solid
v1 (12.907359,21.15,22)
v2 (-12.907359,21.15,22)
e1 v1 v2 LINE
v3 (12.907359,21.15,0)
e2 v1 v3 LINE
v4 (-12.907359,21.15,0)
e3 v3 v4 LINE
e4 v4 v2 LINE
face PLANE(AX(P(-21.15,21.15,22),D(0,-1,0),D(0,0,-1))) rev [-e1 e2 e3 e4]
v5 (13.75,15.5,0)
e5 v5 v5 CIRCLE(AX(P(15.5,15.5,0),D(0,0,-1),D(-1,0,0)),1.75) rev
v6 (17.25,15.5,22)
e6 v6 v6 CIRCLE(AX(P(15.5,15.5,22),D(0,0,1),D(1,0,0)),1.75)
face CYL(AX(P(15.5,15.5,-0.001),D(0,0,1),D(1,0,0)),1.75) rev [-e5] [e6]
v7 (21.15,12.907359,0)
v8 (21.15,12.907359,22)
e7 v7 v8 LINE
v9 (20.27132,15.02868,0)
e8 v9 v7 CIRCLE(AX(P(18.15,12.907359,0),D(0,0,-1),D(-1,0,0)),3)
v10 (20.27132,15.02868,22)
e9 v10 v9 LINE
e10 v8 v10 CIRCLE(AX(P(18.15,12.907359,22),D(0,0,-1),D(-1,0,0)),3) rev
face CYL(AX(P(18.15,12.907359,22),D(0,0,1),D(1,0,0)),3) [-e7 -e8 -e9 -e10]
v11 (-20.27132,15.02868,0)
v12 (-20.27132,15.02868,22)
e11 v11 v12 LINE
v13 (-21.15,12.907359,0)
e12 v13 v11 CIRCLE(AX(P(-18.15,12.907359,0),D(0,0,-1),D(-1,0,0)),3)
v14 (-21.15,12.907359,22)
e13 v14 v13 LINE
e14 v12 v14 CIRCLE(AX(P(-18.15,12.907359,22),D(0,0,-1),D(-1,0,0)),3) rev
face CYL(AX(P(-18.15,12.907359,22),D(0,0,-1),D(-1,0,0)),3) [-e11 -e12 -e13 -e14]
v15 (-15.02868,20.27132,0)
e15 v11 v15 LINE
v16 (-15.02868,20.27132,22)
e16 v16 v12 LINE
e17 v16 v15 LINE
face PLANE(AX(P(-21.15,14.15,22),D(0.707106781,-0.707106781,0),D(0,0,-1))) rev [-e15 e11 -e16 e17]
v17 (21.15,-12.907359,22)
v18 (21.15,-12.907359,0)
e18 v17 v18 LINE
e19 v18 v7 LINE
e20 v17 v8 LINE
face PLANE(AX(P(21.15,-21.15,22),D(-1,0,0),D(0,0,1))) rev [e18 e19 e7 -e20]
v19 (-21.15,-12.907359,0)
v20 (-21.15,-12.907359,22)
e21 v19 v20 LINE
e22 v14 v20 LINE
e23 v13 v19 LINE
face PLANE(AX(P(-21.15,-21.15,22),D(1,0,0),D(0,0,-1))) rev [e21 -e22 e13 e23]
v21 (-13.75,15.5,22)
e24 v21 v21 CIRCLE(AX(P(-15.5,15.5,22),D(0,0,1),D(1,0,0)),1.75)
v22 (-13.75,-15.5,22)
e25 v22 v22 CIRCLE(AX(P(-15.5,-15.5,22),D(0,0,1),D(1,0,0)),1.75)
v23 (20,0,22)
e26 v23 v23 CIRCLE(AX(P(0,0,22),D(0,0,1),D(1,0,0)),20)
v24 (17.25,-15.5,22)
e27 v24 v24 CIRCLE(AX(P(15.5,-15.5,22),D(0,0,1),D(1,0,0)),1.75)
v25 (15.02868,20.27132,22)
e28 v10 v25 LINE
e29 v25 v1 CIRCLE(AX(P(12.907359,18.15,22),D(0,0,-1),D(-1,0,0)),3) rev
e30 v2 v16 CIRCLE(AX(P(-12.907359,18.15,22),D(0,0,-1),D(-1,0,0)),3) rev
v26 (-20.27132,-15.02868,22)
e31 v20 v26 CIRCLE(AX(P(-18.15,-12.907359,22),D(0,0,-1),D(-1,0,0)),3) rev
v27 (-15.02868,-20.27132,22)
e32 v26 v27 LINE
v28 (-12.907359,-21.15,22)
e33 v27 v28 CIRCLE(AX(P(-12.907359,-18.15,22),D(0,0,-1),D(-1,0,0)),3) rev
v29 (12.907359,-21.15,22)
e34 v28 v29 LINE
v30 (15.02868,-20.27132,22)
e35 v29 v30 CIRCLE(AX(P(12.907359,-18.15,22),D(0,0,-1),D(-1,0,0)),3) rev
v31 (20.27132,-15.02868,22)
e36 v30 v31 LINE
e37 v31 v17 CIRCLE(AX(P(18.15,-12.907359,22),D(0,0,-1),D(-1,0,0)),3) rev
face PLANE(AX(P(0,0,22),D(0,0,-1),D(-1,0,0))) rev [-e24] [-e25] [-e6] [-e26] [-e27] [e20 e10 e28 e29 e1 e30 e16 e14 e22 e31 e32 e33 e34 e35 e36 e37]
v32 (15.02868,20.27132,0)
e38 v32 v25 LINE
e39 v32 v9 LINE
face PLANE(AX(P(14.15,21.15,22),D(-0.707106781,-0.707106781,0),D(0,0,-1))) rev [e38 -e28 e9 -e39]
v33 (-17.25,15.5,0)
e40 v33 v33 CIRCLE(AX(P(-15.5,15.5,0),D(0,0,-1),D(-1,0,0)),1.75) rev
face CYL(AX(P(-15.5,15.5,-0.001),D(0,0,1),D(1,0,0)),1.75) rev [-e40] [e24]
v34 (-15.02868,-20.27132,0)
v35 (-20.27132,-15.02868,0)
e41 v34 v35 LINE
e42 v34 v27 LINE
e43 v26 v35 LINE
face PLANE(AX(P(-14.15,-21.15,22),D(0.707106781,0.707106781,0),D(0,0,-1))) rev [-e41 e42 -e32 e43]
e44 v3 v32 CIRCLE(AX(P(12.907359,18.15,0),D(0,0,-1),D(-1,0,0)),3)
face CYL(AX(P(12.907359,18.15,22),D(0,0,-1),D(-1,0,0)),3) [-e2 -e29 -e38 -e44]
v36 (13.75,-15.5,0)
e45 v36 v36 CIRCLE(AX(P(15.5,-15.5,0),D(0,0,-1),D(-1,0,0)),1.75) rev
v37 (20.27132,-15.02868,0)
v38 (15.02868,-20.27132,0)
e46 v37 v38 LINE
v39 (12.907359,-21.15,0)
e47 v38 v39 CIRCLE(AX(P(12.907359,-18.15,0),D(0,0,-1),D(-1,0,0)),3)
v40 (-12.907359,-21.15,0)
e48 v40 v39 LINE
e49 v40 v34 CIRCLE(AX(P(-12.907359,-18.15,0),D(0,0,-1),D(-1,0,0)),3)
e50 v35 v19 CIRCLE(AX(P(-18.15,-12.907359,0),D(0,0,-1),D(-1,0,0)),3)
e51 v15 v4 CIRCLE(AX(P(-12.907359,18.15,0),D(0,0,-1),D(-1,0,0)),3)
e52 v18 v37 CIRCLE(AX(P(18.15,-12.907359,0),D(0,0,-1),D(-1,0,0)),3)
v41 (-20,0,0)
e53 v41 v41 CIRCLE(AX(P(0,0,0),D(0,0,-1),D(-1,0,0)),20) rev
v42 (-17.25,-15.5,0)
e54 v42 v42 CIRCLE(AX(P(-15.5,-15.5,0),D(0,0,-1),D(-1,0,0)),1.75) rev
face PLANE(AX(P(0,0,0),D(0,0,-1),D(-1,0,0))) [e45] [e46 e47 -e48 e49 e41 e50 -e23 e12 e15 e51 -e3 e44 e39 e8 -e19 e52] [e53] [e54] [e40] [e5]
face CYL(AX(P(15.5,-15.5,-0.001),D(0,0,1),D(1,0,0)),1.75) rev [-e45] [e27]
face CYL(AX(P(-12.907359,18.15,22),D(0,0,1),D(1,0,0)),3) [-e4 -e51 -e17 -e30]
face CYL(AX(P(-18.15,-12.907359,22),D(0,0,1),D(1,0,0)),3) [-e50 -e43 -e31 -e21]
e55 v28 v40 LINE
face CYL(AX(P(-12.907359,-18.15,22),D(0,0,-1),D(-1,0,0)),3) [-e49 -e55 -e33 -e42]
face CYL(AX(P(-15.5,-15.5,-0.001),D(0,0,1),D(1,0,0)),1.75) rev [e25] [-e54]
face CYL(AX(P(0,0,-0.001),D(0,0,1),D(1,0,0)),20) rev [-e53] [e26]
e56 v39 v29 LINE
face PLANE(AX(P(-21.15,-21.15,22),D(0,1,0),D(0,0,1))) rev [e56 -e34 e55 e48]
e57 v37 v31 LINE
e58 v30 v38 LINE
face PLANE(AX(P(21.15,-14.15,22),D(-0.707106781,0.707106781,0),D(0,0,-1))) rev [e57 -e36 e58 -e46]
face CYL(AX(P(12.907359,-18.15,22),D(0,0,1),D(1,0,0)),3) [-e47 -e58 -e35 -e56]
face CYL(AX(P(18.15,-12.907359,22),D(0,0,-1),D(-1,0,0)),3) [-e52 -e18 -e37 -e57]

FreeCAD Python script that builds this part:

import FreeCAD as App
import Part
import Sketcher

V = App.Vector


def edges_at(feature, points):
    """Names of the edges that pass closest to the given points."""
    edges = feature.Shape.Edges
    near = lambda p: min(range(len(edges)), key=lambda i: edges[i].distToShape(Part.Vertex(*p))[0])
    return sorted({f"Edge{near(p) + 1}" for p in points})


def add_polygon(sketch, points):
    """Adds a closed chain of lines whose ends are joined by coincident constraints."""
    first, n = sketch.GeometryCount, len(points)
    for a, b in zip(points, points[1:] + points[:1]):
        sketch.addGeometry(Part.LineSegment(App.Vector(*a, 0), App.Vector(*b, 0)), False)
    for i in range(n):
        sketch.addConstraint(Sketcher.Constraint("Coincident", first + i, 2, first + (i + 1) % n, 1))

doc = App.newDocument("Part")
body = doc.addObject("PartDesign::Body", "Body")

# Sketch on XY plane
sketch1 = body.newObject("Sketcher::SketchObject", "Sketch")
sketch1.AttachmentSupport = (doc.getObject("XY_Plane"), [""])
sketch1.MapMode = "FlatFace"
add_polygon(sketch1, [(-21, 21), (-21, -21), (21, -21), (21, 21)])  # lines 0-3
sketch1.addConstraint(Sketcher.Constraint("Vertical", 0))
sketch1.addConstraint(Sketcher.Constraint("Horizontal", 1))
sketch1.addConstraint(Sketcher.Constraint("Vertical", 2))
sketch1.addConstraint(Sketcher.Constraint("Horizontal", 3))
sketch1.addConstraint(Sketcher.Constraint("Symmetric", 0, 2, 2, 2, -1, 1))
sketch1.addConstraint(Sketcher.Constraint("Equal", 3, 0))
sketch1.addConstraint(Sketcher.Constraint("DistanceX", 1, 1, 1, 2, 42.3))
pad1 = body.newObject("PartDesign::Pad", "Pad")
pad1.Profile = sketch1
pad1.Length = 22
doc.recompute()

chamfer = body.newObject("PartDesign::Chamfer", "Chamfer")
chamfer.Base = (pad1, edges_at(pad1, [
    (21.15, -21.15, 11),
    (-21.15, -21.15, 11),
    (-21.15, 21.15, 11),
    (21.15, 21.15, 11),
]))
chamfer.Size = 7
doc.recompute()

fillet = body.newObject("PartDesign::Fillet", "Fillet")
fillet.Base = (chamfer, edges_at(chamfer, [
    (14.15, -21.15, 11),
    (-14.15, -21.15, 11),
    (-21.15, 14.15, 11),
    (-21.15, -14.15, 11),
    (21.15, 14.15, 11),
    (21.15, -14.15, 11),
    (14.15, 21.15, 11),
    (-14.15, 21.15, 11),
]))
fillet.Radius = 3

# Sketch on XY plane
sketch2 = body.newObject("Sketcher::SketchObject", "Sketch001")
sketch2.AttachmentSupport = (doc.getObject("XY_Plane"), [""])
sketch2.MapMode = "FlatFace"
sketch2.AttachmentOffset = App.Placement(V(0, 0, 22), App.Rotation())
sketch2.addGeometry(Part.Circle(V(0, 0, 0), V(0, 0, 1), 20), False)
sketch2.addConstraint(Sketcher.Constraint("Coincident", 0, 3, -1, 1))
sketch2.addConstraint(Sketcher.Constraint("Diameter", 0, 40.0))
pocket1 = body.newObject("PartDesign::Pocket", "Pocket")
pocket1.Profile = sketch2
pocket1.Type = "UpToFirst"

# Sketch on XY plane
sketch3 = body.newObject("Sketcher::SketchObject", "Sketch002")
sketch3.AttachmentSupport = (doc.getObject("XY_Plane"), [""])
sketch3.MapMode = "FlatFace"
sketch3.AttachmentOffset = App.Placement(V(0, 0, 22), App.Rotation())
sketch3.addGeometry(Part.Circle(V(-15.5, 15.5, 0), V(0, 0, 1), 1.8), False)
sketch3.addConstraint(Sketcher.Constraint("Diameter", 0, 3.5))
sketch3.addConstraint(Sketcher.Constraint("DistanceX", 0, 3, -1, 1, 15.5))
sketch3.addConstraint(Sketcher.Constraint("DistanceY", -1, 1, 0, 3, 15.5))
pocket2 = body.newObject("PartDesign::Pocket", "Pocket001")
pocket2.Profile = sketch3
pocket2.Type = "UpToFirst"

# Sketch on XY plane
sketch4 = body.newObject("Sketcher::SketchObject", "Sketch003")
sketch4.AttachmentSupport = (doc.getObject("XY_Plane"), [""])
sketch4.MapMode = "FlatFace"
sketch4.AttachmentOffset = App.Placement(V(0, 0, 22), App.Rotation())
sketch4.addGeometry(Part.Circle(V(15.5, 15.5, 0), V(0, 0, 1), 1.8), False)
sketch4.addConstraint(Sketcher.Constraint("Diameter", 0, 3.5))
sketch4.addConstraint(Sketcher.Constraint("DistanceX", -1, 1, 0, 3, 15.5))
sketch4.addConstraint(Sketcher.Constraint("DistanceY", -1, 1, 0, 3, 15.5))
pocket3 = body.newObject("PartDesign::Pocket", "Pocket002")
pocket3.Profile = sketch4
pocket3.Type = "UpToFirst"

# Sketch on XY plane
sketch5 = body.newObject("Sketcher::SketchObject", "Sketch004")
sketch5.AttachmentSupport = (doc.getObject("XY_Plane"), [""])
sketch5.MapMode = "FlatFace"
sketch5.AttachmentOffset = App.Placement(V(0, 0, 22), App.Rotation())
sketch5.addGeometry(Part.Circle(V(15.5, -15.5, 0), V(0, 0, 1), 1.8), False)
sketch5.addConstraint(Sketcher.Constraint("Diameter", 0, 3.5))
sketch5.addConstraint(Sketcher.Constraint("DistanceX", -1, 1, 0, 3, 15.5))
sketch5.addConstraint(Sketcher.Constraint("DistanceY", 0, 3, -1, 1, 15.5))
pocket4 = body.newObject("PartDesign::Pocket", "Pocket003")
pocket4.Profile = sketch5
pocket4.Type = "UpToFirst"

# Sketch on XY plane
sketch6 = body.newObject("Sketcher::SketchObject", "Sketch005")
sketch6.AttachmentSupport = (doc.getObject("XY_Plane"), [""])
sketch6.MapMode = "FlatFace"
sketch6.AttachmentOffset = App.Placement(V(0, 0, 22), App.Rotation())
sketch6.addGeometry(Part.Circle(V(-15.5, -15.5, 0), V(0, 0, 1), 1.8), False)
sketch6.addConstraint(Sketcher.Constraint("Diameter", 0, 3.5))
sketch6.addConstraint(Sketcher.Constraint("DistanceX", 0, 3, -1, 1, 15.5))
sketch6.addConstraint(Sketcher.Constraint("DistanceY", 0, 3, -1, 1, 15.5))
pocket5 = body.newObject("PartDesign::Pocket", "Pocket004")
pocket5.Profile = sketch6
pocket5.Type = "UpToFirst"

doc.recompute()
